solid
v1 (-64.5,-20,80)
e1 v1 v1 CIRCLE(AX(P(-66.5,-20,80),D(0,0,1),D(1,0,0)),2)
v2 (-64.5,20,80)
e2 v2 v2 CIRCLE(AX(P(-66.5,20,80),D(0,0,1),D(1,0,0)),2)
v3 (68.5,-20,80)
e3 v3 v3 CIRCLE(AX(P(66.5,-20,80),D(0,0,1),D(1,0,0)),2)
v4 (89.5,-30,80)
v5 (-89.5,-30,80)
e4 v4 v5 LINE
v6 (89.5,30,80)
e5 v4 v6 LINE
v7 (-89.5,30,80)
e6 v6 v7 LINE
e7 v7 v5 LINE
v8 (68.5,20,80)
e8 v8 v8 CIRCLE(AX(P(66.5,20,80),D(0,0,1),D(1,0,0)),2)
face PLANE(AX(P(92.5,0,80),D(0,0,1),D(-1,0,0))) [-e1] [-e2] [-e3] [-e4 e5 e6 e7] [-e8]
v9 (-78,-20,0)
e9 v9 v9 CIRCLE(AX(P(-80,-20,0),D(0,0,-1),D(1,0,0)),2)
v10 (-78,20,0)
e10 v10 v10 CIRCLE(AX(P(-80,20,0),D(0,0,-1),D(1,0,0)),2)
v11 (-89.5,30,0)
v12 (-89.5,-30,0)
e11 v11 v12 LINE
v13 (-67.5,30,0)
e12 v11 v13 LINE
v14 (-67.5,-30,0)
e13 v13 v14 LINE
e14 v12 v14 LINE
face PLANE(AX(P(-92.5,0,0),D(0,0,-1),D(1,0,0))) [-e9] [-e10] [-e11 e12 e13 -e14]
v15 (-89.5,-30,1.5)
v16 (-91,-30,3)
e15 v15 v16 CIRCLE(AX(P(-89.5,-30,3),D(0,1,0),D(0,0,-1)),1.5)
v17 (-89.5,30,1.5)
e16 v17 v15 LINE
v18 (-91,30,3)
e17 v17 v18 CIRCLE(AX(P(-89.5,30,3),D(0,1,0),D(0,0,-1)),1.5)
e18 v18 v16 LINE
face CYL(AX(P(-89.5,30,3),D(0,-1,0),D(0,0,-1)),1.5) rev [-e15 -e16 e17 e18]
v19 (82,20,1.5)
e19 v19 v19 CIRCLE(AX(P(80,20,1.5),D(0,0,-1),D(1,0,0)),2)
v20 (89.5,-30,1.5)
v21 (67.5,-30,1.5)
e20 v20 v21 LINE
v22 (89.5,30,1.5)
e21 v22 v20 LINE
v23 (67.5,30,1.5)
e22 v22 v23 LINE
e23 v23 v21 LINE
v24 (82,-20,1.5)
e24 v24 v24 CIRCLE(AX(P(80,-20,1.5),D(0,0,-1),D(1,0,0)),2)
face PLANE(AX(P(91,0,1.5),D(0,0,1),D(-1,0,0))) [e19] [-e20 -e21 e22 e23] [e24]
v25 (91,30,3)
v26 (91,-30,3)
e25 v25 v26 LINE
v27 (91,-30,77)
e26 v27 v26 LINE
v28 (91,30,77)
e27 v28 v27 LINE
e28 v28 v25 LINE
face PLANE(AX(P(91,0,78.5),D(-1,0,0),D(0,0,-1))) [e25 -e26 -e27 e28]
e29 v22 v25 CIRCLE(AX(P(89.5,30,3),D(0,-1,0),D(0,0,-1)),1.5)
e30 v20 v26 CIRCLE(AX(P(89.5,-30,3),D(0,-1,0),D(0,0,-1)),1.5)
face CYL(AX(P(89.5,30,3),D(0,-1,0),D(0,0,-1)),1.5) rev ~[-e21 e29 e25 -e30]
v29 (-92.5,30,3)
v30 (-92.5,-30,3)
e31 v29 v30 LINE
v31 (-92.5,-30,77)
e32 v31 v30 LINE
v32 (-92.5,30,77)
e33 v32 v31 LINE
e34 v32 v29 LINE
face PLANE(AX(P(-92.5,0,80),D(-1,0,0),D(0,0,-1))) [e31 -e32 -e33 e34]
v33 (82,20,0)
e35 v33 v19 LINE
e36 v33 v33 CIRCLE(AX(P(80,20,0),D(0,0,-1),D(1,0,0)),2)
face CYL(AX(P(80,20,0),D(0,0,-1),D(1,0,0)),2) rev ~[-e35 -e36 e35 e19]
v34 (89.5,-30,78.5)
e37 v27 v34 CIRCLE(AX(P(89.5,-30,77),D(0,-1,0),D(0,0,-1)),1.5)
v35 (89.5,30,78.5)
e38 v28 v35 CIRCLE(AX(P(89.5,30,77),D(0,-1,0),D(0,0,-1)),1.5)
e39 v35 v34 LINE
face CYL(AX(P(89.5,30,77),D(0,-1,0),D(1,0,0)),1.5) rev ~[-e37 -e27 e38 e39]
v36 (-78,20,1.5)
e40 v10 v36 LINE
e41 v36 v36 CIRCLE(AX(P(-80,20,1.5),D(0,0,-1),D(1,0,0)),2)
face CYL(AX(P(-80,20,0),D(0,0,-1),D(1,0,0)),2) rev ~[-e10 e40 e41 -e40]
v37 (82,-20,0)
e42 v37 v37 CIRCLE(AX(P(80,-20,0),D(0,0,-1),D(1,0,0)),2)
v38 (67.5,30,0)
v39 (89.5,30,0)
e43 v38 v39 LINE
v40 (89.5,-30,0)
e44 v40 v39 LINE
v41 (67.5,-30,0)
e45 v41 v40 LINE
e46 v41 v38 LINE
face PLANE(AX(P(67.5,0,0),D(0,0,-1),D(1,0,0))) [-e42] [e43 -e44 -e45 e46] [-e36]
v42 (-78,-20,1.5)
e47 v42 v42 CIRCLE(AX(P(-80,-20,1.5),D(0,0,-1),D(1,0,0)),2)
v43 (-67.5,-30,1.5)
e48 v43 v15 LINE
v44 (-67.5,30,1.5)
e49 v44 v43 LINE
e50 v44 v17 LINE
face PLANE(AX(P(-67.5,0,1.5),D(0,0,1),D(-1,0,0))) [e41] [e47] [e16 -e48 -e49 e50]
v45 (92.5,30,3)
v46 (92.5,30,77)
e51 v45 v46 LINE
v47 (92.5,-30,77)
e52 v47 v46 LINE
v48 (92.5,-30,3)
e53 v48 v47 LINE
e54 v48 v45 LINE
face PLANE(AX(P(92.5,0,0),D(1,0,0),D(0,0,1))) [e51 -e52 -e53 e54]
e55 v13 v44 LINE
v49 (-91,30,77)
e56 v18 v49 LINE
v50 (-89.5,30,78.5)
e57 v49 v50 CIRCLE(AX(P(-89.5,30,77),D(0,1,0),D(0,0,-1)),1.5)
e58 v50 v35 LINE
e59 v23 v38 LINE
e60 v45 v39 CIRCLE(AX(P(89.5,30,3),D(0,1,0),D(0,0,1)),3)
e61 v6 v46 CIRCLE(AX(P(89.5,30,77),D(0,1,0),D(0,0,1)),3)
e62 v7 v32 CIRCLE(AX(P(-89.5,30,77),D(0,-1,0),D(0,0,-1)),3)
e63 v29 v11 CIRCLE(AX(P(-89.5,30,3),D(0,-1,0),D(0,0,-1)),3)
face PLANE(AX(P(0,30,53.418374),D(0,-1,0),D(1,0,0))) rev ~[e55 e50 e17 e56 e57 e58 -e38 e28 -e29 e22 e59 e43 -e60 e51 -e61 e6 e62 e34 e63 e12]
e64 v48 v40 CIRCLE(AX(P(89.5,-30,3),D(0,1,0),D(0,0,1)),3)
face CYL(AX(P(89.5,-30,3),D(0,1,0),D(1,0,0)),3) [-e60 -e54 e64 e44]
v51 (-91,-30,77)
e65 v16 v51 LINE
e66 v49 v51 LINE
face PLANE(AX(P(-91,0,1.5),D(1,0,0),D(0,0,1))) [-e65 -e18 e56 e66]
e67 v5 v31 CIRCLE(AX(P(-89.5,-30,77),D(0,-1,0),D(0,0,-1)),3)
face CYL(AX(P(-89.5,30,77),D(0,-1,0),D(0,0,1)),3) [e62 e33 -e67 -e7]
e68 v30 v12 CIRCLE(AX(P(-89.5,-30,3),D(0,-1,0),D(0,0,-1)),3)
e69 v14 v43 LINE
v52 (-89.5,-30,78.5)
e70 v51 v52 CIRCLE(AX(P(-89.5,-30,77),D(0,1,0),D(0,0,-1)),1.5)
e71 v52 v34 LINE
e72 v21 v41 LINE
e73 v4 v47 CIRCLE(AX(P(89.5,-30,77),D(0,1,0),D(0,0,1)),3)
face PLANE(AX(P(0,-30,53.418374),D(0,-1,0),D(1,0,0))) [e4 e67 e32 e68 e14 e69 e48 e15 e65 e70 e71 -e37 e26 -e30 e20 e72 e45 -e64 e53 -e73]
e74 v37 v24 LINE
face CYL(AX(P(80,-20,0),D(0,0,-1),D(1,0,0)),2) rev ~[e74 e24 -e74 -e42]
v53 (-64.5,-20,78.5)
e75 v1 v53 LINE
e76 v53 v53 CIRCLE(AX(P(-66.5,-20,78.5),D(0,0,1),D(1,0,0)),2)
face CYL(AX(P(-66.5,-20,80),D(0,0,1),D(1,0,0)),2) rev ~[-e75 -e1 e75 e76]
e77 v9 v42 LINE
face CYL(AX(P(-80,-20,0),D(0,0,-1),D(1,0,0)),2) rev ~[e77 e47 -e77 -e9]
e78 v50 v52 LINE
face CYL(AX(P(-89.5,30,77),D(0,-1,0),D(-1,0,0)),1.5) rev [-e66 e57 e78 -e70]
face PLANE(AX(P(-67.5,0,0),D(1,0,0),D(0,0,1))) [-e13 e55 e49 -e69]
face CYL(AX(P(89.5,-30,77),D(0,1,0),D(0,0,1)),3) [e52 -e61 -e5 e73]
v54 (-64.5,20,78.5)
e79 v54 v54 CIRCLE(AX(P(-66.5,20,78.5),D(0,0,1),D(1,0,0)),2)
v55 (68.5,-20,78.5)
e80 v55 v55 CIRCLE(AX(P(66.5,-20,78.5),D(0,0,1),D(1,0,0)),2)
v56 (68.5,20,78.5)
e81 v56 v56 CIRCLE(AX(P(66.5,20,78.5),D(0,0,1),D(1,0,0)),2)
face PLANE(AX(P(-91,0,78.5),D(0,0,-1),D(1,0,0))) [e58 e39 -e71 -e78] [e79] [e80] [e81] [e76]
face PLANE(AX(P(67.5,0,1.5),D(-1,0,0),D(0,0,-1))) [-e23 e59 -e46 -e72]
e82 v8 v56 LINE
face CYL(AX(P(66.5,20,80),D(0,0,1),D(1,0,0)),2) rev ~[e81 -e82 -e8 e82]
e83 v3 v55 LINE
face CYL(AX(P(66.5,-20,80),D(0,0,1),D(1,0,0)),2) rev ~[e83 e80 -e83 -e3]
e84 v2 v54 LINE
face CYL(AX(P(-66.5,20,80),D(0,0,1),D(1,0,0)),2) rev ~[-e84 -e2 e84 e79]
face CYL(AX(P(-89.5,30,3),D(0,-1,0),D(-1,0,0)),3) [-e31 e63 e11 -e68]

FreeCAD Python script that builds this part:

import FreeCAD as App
import Part
import Sketcher
from FreeCAD import Vector
Q = App.Units.Quantity


def edges_at(feature, points):
    """Names of the edges that pass closest to the given points."""
    edges = feature.Shape.Edges
    near = lambda p: min(range(len(edges)), key=lambda i: edges[i].distToShape(Part.Vertex(*p))[0])
    return sorted({f"Edge{near(p) + 1}" for p in points})


def add_polygon(sketch, points):
    """Adds a closed chain of lines whose ends are joined by coincident constraints."""
    first, n = sketch.GeometryCount, len(points)
    for a, b in zip(points, points[1:] + points[:1]):
        sketch.addGeometry(Part.LineSegment(App.Vector(*a, 0), App.Vector(*b, 0)), False)
    for i in range(n):
        sketch.addConstraint(Sketcher.Constraint("Coincident", first + i, 2, first + (i + 1) % n, 1))

doc = App.newDocument("Part")
params = doc.addObject("Spreadsheet::Sheet", "Params")
for row, (alias, value) in enumerate([
    ("sketch1_width", "185 mm"),
    ("sketch1_width2", "25 mm"),
    ("sketch1_width3", "182 mm"),
    ("sketch1_height", "80 mm"),
    ("sketch1_height2", "77 mm"),
    ("pad1_length", "60 mm"),
    ("sketch2_diameter", "4 mm"),
    ("pocket1_length", "25 mm"),
    ("sketch3_diameter", "4 mm"),
    ("pocket2_length", "10 mm"),
    ("fillet_radius", "3 mm"),
    ("fillet2_radius", "1.5 mm"),
], start=1):
    params.set(f"A{row}", alias)
    params.set(f"B{row}", "=" + value)
    params.setAlias(f"B{row}", alias)

body = doc.addObject("PartDesign::Body", "Body")

sketch1 = body.newObject("Sketcher::SketchObject", "Sketch")
sketch1.AttachmentSupport = (doc.getObject("XZ_Plane"), [""])
sketch1.MapMode = "FlatFace"
add_polygon(sketch1, [(92.5, 80), (-92.5, 80), (-92.5, 0), (-67.5, 0), (-67.5, 1.5), (-91, 1.5), (-91, 78.5), (91, 78.5), (91, 1.5), (67.5, 1.5), (67.5, 0), (92.5, 0)])
sketch1.addConstraint(Sketcher.Constraint("Horizontal", 0))
sketch1.addConstraint(Sketcher.Constraint("Vertical", 1))
sketch1.addConstraint(Sketcher.Constraint("Horizontal", 2))
sketch1.addConstraint(Sketcher.Constraint("Vertical", 3))
sketch1.addConstraint(Sketcher.Constraint("Horizontal", 4))
sketch1.addConstraint(Sketcher.Constraint("Vertical", 5))
sketch1.addConstraint(Sketcher.Constraint("Horizontal", 6))
sketch1.addConstraint(Sketcher.Constraint("Vertical", 7))
sketch1.addConstraint(Sketcher.Constraint("Horizontal", 8))
sketch1.addConstraint(Sketcher.Constraint("Vertical", 9))
sketch1.addConstraint(Sketcher.Constraint("Horizontal", 10))
sketch1.addConstraint(Sketcher.Constraint("Vertical", 11))
sketch1.addConstraint(Sketcher.Constraint("Symmetric", 2, 2, 9, 2, -1, 1))
sketch1.addConstraint(Sketcher.Constraint("Symmetric", 4, 2, 7, 2, -2))
sketch1.addConstraint(Sketcher.Constraint("Symmetric", 1, 2, 10, 2, -2))
sketch1.addConstraint(Sketcher.Constraint("DistanceX", 0, 2, 0, 1, Q("185 mm")))
sketch1.addConstraint(Sketcher.Constraint("DistanceX", 2, 1, 2, 2, Q("25 mm")))
sketch1.addConstraint(Sketcher.Constraint("DistanceX", 6, 1, 6, 2, Q("182 mm")))
sketch1.addConstraint(Sketcher.Constraint("DistanceY", 1, 2, 1, 1, Q("80 mm")))
sketch1.addConstraint(Sketcher.Constraint("DistanceY", 5, 1, 5, 2, Q("77 mm")))
sketch1.addConstraint(Sketcher.Constraint("DistanceY", 3, 1, 3, 2, Q("1.5 mm")))
sketch1.setExpression("Constraints[27]", "Params.sketch1_width")
sketch1.setExpression("Constraints[28]", "Params.sketch1_width2")
sketch1.setExpression("Constraints[29]", "Params.sketch1_width3")
sketch1.setExpression("Constraints[30]", "Params.sketch1_height")
sketch1.setExpression("Constraints[31]", "Params.sketch1_height2")
pad1 = body.newObject("PartDesign::Pad", "Pad")
pad1.Profile = sketch1
pad1.setExpression("Length", "Params.pad1_length")
pad1.Midplane = True

sketch2 = body.newObject("Sketcher::SketchObject", "Sketch001")
sketch2.AttachmentSupport = (doc.getObject("XY_Plane"), [""])
sketch2.MapMode = "FlatFace"
sketch2.AttachmentOffset = App.Placement(Vector(0, 0, 80), App.Rotation())
sketch2.addGeometry(Part.Circle(Vector(-66.5, 20, 0), Vector(0, 0, 1), 2), False)
sketch2.addGeometry(Part.Circle(Vector(-66.5, -20, 0), Vector(0, 0, 1), 2), False)
sketch2.addGeometry(Part.Circle(Vector(66.5, 20, 0), Vector(0, 0, 1), 2), False)
sketch2.addGeometry(Part.Circle(Vector(66.5, -20, 0), Vector(0, 0, 1), 2), False)
sketch2.addConstraint(Sketcher.Constraint("Equal", 0, 1))
sketch2.addConstraint(Sketcher.Constraint("Equal", 1, 2))
sketch2.addConstraint(Sketcher.Constraint("Equal", 2, 3))
sketch2.addConstraint(Sketcher.Constraint("Symmetric", 1, 3, 2, 3, -1, 1))
sketch2.addConstraint(Sketcher.Constraint("Symmetric", 0, 3, 3, 3, -1, 1))
sketch2.addConstraint(Sketcher.Constraint("Symmetric", 0, 3, 2, 3, -2))
sketch2.addConstraint(Sketcher.Constraint("Diameter", 0, Q("4 mm")))
sketch2.addConstraint(Sketcher.Constraint("DistanceY", -1, 1, 0, 3, Q("20 mm")))
sketch2.addConstraint(Sketcher.Constraint("DistanceX", 0, 3, 2, 3, Q("133 mm")))
sketch2.setExpression("Constraints[6]", "Params.sketch2_diameter")
pocket1 = body.newObject("PartDesign::Pocket", "Pocket")
pocket1.Profile = sketch2
pocket1.setExpression("Length", "Params.pocket1_length")

sketch3 = body.newObject("Sketcher::SketchObject", "Sketch002")
sketch3.AttachmentSupport = (doc.getObject("XY_Plane"), [""])
sketch3.MapMode = "FlatFace"
sketch3.addGeometry(Part.Circle(Vector(-80, -20, 0), Vector(0, 0, 1), 2), False)
sketch3.addGeometry(Part.Circle(Vector(-80, 20, 0), Vector(0, 0, 1), 2), False)
sketch3.addGeometry(Part.Circle(Vector(80, 20, 0), Vector(0, 0, 1), 2), False)
sketch3.addGeometry(Part.Circle(Vector(80, -20, 0), Vector(0, 0, 1), 2), False)
sketch3.addConstraint(Sketcher.Constraint("Equal", 0, 1))
sketch3.addConstraint(Sketcher.Constraint("Equal", 1, 2))
sketch3.addConstraint(Sketcher.Constraint("Equal", 2, 3))
sketch3.addConstraint(Sketcher.Constraint("Symmetric", 0, 3, 2, 3, -1, 1))
sketch3.addConstraint(Sketcher.Constraint("Symmetric", 1, 3, 3, 3, -1, 1))
sketch3.addConstraint(Sketcher.Constraint("Symmetric", 1, 3, 2, 3, -2))
sketch3.addConstraint(Sketcher.Constraint("Diameter", 0, Q("4 mm")))
sketch3.addConstraint(Sketcher.Constraint("DistanceX", 0, 3, -1, 1, Q("80 mm")))
sketch3.addConstraint(Sketcher.Constraint("DistanceY", 0, 3, -1, 1, Q("20 mm")))
sketch3.setExpression("Constraints[6]", "Params.sketch3_diameter")
pocket2 = body.newObject("PartDesign::Pocket", "Pocket001")
pocket2.Profile = sketch3
pocket2.setExpression("Length", "Params.pocket2_length")
pocket2.Reversed = True
doc.recompute()

fillet = body.newObject("PartDesign::Fillet", "Fillet")
fillet.Base = (pocket2, edges_at(pocket2, [
    (-92.5, 0, 80),
    (-92.5, 0, 0),
    (92.5, 0, 80),
    (92.5, 0, 0),
]))
fillet.setExpression("Radius", "Params.fillet_radius")
doc.recompute()

fillet2 = body.newObject("PartDesign::Fillet", "Fillet001")
fillet2.Base = (fillet, edges_at(fillet, [
    (-91, 0, 78.5),
    (91, 0, 78.5),
    (-91, 0, 1.5),
    (91, 0, 1.5),
]))
fillet2.setExpression("Radius", "Params.fillet2_radius")

doc.recompute()
